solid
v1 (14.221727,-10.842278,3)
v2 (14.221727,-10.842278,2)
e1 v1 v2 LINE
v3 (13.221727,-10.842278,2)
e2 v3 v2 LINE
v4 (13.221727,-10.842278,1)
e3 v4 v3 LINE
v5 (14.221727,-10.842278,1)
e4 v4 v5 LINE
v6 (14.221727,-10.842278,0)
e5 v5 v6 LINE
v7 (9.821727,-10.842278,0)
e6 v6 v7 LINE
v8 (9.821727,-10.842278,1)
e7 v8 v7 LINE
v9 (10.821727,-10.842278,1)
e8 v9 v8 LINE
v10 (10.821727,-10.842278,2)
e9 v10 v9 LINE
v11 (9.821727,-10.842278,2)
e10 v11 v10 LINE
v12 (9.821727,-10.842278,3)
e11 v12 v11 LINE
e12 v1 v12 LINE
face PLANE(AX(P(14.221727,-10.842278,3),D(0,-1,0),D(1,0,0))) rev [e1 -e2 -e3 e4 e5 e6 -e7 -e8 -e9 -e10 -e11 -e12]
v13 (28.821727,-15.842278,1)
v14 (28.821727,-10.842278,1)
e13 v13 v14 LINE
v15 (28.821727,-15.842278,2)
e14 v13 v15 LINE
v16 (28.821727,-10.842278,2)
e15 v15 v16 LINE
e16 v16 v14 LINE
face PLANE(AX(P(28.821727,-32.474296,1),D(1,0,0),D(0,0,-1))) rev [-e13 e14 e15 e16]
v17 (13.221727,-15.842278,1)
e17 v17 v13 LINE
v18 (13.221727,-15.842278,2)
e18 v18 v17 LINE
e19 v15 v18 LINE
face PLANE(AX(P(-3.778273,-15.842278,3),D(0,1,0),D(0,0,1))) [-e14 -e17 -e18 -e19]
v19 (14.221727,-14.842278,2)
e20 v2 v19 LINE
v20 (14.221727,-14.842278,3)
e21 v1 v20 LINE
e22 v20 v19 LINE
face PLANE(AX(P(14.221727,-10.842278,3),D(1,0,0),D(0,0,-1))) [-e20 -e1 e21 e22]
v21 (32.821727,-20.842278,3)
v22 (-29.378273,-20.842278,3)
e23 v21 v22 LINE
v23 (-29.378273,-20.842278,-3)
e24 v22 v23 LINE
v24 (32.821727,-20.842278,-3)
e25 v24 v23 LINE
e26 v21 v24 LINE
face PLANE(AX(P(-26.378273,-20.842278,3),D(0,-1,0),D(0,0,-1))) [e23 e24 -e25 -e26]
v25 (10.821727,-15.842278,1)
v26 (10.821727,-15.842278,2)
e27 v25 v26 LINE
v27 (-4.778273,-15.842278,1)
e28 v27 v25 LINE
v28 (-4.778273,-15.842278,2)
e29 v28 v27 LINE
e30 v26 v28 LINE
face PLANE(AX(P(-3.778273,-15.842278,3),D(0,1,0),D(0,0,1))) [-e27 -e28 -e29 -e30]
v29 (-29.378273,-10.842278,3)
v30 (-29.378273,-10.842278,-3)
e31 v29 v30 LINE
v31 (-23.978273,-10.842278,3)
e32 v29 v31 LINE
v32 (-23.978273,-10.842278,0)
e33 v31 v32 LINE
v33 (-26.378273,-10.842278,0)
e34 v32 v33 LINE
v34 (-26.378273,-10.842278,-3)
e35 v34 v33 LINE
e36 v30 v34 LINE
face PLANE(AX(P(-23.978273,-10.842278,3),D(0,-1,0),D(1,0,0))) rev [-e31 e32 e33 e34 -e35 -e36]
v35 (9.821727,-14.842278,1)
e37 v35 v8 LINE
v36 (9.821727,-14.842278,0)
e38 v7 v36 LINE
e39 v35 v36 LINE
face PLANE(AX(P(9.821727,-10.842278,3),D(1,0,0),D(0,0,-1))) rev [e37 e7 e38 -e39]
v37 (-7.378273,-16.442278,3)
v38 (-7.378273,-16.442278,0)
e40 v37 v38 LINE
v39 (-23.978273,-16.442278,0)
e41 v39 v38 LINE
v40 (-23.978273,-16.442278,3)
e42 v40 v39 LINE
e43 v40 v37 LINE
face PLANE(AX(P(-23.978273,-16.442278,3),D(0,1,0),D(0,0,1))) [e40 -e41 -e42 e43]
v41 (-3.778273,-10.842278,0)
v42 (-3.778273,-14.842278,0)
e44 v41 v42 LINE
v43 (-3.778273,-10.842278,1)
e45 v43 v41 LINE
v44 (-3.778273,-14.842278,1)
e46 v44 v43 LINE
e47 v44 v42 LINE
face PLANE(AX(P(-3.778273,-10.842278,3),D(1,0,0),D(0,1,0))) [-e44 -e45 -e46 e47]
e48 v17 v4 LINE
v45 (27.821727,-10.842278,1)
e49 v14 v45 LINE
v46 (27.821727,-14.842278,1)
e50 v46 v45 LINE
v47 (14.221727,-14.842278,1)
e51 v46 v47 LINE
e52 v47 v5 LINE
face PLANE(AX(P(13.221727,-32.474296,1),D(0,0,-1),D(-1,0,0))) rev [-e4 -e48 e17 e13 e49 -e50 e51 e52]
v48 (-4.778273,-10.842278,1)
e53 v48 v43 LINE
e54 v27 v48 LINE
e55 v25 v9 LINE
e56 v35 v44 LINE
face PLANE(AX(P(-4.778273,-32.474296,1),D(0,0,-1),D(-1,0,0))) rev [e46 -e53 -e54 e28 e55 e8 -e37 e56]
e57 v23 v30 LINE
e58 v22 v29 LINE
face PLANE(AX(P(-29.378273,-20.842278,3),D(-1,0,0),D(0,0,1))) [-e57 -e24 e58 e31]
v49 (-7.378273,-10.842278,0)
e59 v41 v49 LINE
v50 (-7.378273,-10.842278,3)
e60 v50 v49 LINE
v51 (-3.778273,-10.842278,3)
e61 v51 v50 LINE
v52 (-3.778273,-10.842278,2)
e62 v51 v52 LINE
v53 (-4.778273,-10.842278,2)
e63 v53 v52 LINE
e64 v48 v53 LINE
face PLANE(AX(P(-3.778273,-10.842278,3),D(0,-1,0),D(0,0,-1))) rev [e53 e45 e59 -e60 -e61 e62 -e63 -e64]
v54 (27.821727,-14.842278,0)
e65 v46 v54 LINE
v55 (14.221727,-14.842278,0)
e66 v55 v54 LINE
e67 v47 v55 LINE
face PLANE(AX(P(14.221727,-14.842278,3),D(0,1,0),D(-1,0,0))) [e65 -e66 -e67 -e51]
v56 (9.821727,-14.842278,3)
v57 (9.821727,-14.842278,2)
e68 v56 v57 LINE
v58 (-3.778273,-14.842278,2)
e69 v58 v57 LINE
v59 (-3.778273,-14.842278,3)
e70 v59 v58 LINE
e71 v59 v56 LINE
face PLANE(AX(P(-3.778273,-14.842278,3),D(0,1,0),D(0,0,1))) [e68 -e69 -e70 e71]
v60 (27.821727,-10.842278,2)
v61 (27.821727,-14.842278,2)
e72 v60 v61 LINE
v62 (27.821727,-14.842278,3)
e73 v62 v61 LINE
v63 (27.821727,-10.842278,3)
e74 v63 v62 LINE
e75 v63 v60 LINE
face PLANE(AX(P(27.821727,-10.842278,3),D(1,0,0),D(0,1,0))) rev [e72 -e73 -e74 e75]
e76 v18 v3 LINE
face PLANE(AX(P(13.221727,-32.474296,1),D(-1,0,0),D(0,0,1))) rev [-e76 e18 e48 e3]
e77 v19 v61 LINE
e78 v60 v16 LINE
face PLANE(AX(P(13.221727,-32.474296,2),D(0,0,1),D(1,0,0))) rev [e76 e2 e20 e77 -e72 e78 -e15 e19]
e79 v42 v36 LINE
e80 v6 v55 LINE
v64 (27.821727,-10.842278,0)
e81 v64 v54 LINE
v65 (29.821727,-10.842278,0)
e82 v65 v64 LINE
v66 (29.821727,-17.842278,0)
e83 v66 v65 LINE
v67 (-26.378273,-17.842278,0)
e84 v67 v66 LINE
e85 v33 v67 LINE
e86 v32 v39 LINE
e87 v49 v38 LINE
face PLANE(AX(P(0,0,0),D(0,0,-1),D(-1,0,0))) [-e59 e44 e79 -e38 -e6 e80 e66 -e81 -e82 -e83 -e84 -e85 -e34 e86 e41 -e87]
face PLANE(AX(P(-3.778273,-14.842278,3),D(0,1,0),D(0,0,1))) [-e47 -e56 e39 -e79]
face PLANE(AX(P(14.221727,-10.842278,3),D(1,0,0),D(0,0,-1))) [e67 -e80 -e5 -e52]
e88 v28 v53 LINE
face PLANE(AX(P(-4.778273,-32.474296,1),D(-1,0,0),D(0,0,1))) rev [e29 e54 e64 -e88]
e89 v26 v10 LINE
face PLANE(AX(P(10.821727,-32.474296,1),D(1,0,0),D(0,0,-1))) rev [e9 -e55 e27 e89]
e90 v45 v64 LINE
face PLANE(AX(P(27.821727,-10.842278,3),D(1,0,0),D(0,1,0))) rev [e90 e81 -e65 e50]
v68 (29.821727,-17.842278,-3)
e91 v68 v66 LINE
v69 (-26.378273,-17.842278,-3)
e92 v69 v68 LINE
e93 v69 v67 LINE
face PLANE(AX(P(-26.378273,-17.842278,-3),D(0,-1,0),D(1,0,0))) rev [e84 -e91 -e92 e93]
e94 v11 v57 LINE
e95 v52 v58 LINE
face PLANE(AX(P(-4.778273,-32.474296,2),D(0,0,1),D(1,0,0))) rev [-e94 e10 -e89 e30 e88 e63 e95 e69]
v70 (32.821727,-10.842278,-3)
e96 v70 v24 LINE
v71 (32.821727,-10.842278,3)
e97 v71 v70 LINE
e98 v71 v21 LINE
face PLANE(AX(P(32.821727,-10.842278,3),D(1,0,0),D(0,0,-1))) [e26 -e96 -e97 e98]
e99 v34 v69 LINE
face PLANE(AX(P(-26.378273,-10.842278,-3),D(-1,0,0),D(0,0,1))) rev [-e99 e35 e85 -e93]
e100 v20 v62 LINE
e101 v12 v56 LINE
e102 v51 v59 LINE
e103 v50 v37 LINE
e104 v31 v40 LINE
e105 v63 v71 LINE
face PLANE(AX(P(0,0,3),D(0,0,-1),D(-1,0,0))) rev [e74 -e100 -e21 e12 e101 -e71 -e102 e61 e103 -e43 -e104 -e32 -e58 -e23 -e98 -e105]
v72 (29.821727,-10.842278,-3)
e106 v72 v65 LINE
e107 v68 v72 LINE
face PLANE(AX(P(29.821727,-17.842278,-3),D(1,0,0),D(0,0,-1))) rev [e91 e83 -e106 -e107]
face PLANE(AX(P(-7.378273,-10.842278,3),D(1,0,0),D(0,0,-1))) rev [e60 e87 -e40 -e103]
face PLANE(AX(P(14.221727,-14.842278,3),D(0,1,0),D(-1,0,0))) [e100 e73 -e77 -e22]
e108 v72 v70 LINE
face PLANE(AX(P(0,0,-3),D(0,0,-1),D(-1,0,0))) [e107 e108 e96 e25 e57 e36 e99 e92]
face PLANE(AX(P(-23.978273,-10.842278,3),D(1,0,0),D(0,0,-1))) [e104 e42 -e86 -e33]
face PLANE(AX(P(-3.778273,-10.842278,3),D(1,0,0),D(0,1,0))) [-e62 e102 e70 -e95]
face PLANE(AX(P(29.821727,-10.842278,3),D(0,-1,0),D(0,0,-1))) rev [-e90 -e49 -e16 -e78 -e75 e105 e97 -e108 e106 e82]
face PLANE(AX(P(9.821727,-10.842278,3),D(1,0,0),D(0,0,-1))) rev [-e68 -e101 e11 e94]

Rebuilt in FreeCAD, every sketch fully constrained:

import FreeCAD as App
import Part
import Sketcher
Q = App.Units.Quantity

doc = App.newDocument("Part")
body = doc.addObject("PartDesign::Body", "Body")

# Sketch on XY plane
sketch1 = body.newObject("Sketcher::SketchObject", "Sketch")
sketch1.AttachmentSupport = (doc.getObject("XY_Plane"), [""])
sketch1.MapMode = "FlatFace"
sketch1.addGeometry([
    Part.LineSegment(App.Vector(-29.4, -20.8, 0), App.Vector(32.8, -20.8, 0)),  # 0
    Part.LineSegment(App.Vector(32.8, -20.8, 0), App.Vector(32.8, -10.8, 0)),  # 1
    Part.LineSegment(App.Vector(32.8, -10.8, 0), App.Vector(27.8, -10.8, 0)),  # 2
    Part.LineSegment(App.Vector(27.8, -10.8, 0), App.Vector(27.8, -14.8, 0)),  # 3
    Part.LineSegment(App.Vector(27.8, -14.8, 0), App.Vector(14.2, -14.8, 0)),  # 4
    Part.LineSegment(App.Vector(14.2, -14.8, 0), App.Vector(14.2, -10.8, 0)),  # 5
    Part.LineSegment(App.Vector(14.2, -10.8, 0), App.Vector(9.8, -10.8, 0)),  # 6
    Part.LineSegment(App.Vector(9.8, -10.8, 0), App.Vector(9.8, -14.8, 0)),  # 7
    Part.LineSegment(App.Vector(9.8, -14.8, 0), App.Vector(-3.8, -14.8, 0)),  # 8
    Part.LineSegment(App.Vector(-3.8, -14.8, 0), App.Vector(-3.8, -10.8, 0)),  # 9
    Part.LineSegment(App.Vector(-3.8, -10.8, 0), App.Vector(-7.4, -10.8, 0)),  # 10
    Part.LineSegment(App.Vector(-7.4, -10.8, 0), App.Vector(-7.4, -16.4, 0)),  # 11
    Part.LineSegment(App.Vector(-7.4, -16.4, 0), App.Vector(-24, -16.4, 0)),  # 12
    Part.LineSegment(App.Vector(-24, -16.4, 0), App.Vector(-24, -10.8, 0)),  # 13
    Part.LineSegment(App.Vector(-24, -10.8, 0), App.Vector(-29.4, -10.8, 0)),  # 14
    Part.LineSegment(App.Vector(-29.4, -10.8, 0), App.Vector(-29.4, -20.8, 0)),  # 15
], False)
sketch1.addConstraint([
    Sketcher.Constraint("Coincident", 0, 2, 1, 1),
    Sketcher.Constraint("Coincident", 1, 2, 2, 1),
    Sketcher.Constraint("Coincident", 2, 2, 3, 1),
    Sketcher.Constraint("Coincident", 3, 2, 4, 1),
    Sketcher.Constraint("Coincident", 4, 2, 5, 1),
    Sketcher.Constraint("Coincident", 5, 2, 6, 1),
    Sketcher.Constraint("Coincident", 6, 2, 7, 1),
    Sketcher.Constraint("Coincident", 7, 2, 8, 1),
    Sketcher.Constraint("Coincident", 8, 2, 9, 1),
    Sketcher.Constraint("Coincident", 9, 2, 10, 1),
    Sketcher.Constraint("Coincident", 10, 2, 11, 1),
    Sketcher.Constraint("Coincident", 11, 2, 12, 1),
    Sketcher.Constraint("Coincident", 12, 2, 13, 1),
    Sketcher.Constraint("Coincident", 13, 2, 14, 1),
    Sketcher.Constraint("Coincident", 14, 2, 15, 1),
    Sketcher.Constraint("Coincident", 15, 2, 0, 1),
    Sketcher.Constraint("Horizontal", 0),
    Sketcher.Constraint("Vertical", 1),
    Sketcher.Constraint("Horizontal", 2),
    Sketcher.Constraint("Vertical", 3),
    Sketcher.Constraint("Horizontal", 4),
    Sketcher.Constraint("Vertical", 5),
    Sketcher.Constraint("Horizontal", 6),
    Sketcher.Constraint("Vertical", 7),
    Sketcher.Constraint("Horizontal", 8),
    Sketcher.Constraint("Vertical", 9),
    Sketcher.Constraint("Horizontal", 10),
    Sketcher.Constraint("Vertical", 11),
    Sketcher.Constraint("Horizontal", 12),
    Sketcher.Constraint("Vertical", 13),
    Sketcher.Constraint("Horizontal", 14),
    Sketcher.Constraint("Vertical", 15),
    Sketcher.Constraint("Horizontal", 2, 2, 5, 2),
    Sketcher.Constraint("Horizontal", 4, 2, 7, 2),
    Sketcher.Constraint("Horizontal", 6, 2, 9, 2),
    Sketcher.Constraint("Horizontal", 10, 2, 13, 2),
    Sketcher.Constraint("Equal", 4, 8),
    Sketcher.Constraint("DistanceX", 2, 2, 2, 1, Q("5 mm")),
    Sketcher.Constraint("DistanceY", 1, 1, 1, 2, Q("10 mm")),
    Sketcher.Constraint("DistanceY", 3, 2, 3, 1, Q("4 mm")),
    Sketcher.Constraint("DistanceX", 0, 1, 0, 2, Q("62.2 mm")),
    Sketcher.Constraint("DistanceX", 4, 2, 4, 1, Q("13.6 mm")),
    Sketcher.Constraint("DistanceX", 6, 2, 6, 1, Q("4.4 mm")),
    Sketcher.Constraint("DistanceX", 10, 2, 10, 1, Q("3.6 mm")),
    Sketcher.Constraint("DistanceX", 12, 2, 12, 1, Q("16.6 mm")),
    Sketcher.Constraint("DistanceY", 11, 2, 11, 1, Q("5.6 mm")),
    Sketcher.Constraint("DistanceY", 0, 2, -1, 1, Q("20.842278 mm")),
    Sketcher.Constraint("DistanceX", -1, 1, 0, 2, Q("32.821727 mm")),
])
pad1 = body.newObject("PartDesign::Pad", "Pad")
pad1.Profile = sketch1
pad1.Length = 3

# Sketch on XZ plane
sketch2 = body.newObject("Sketcher::SketchObject", "Sketch001")
sketch2.AttachmentSupport = (doc.getObject("XZ_Plane"), [""])
sketch2.MapMode = "FlatFace"
sketch2.AttachmentOffset = App.Placement(App.Vector(0, 0, 10.842278), App.Rotation())
sketch2.addGeometry([
    Part.LineSegment(App.Vector(-4.8, 1, 0), App.Vector(-4.8, 2, 0)),  # 0
    Part.LineSegment(App.Vector(-4.8, 2, 0), App.Vector(10.8, 2, 0)),  # 1
    Part.LineSegment(App.Vector(10.8, 2, 0), App.Vector(10.8, 1, 0)),  # 2
    Part.LineSegment(App.Vector(10.8, 1, 0), App.Vector(-4.8, 1, 0)),  # 3
    Part.LineSegment(App.Vector(13.2, 1, 0), App.Vector(13.2, 2, 0)),  # 4
    Part.LineSegment(App.Vector(13.2, 2, 0), App.Vector(28.8, 2, 0)),  # 5
    Part.LineSegment(App.Vector(28.8, 2, 0), App.Vector(28.8, 1, 0)),  # 6
    Part.LineSegment(App.Vector(28.8, 1, 0), App.Vector(13.2, 1, 0)),  # 7
], False)
sketch2.addConstraint([
    Sketcher.Constraint("Coincident", 0, 2, 1, 1),
    Sketcher.Constraint("Coincident", 1, 2, 2, 1),
    Sketcher.Constraint("Coincident", 2, 2, 3, 1),
    Sketcher.Constraint("Coincident", 3, 2, 0, 1),
    Sketcher.Constraint("Coincident", 4, 2, 5, 1),
    Sketcher.Constraint("Coincident", 5, 2, 6, 1),
    Sketcher.Constraint("Coincident", 6, 2, 7, 1),
    Sketcher.Constraint("Coincident", 7, 2, 4, 1),
    Sketcher.Constraint("Vertical", 0),
    Sketcher.Constraint("Horizontal", 1),
    Sketcher.Constraint("Vertical", 2),
    Sketcher.Constraint("Horizontal", 3),
    Sketcher.Constraint("Vertical", 4),
    Sketcher.Constraint("Horizontal", 5),
    Sketcher.Constraint("Vertical", 6),
    Sketcher.Constraint("Horizontal", 7),
    Sketcher.Constraint("Horizontal", 1, 2, 4, 2),
    Sketcher.Constraint("Horizontal", 3, 2, 6, 2),
    Sketcher.Constraint("Equal", 3, 5),
    Sketcher.Constraint("DistanceY", 0, 1, 0, 2, Q("1 mm")),
    Sketcher.Constraint("DistanceX", 1, 1, 1, 2, Q("15.6 mm")),
    Sketcher.Constraint("DistanceY", -1, 1, 0, 2, Q("2 mm")),
    Sketcher.Constraint("DistanceX", 0, 2, 4, 2, Q("18 mm")),
    Sketcher.Constraint("DistanceX", 0, 2, -1, 1, Q("4.778273 mm")),
])
pocket1 = body.newObject("PartDesign::Pocket", "Pocket")
pocket1.Profile = sketch2
pocket1.Length = 5
pocket1.Reversed = True

# Sketch on XY plane
sketch3 = body.newObject("Sketcher::SketchObject", "Sketch002")
sketch3.AttachmentSupport = (doc.getObject("XY_Plane"), [""])
sketch3.MapMode = "FlatFace"
sketch3.addGeometry([
    Part.LineSegment(App.Vector(32.8, -10.8, 0), App.Vector(32.8, -20.8, 0)),  # 0
    Part.LineSegment(App.Vector(32.8, -20.8, 0), App.Vector(-29.4, -20.8, 0)),  # 1
    Part.LineSegment(App.Vector(-29.4, -20.8, 0), App.Vector(-29.4, -10.8, 0)),  # 2
    Part.LineSegment(App.Vector(-29.4, -10.8, 0), App.Vector(-26.4, -10.8, 0)),  # 3
    Part.LineSegment(App.Vector(-26.4, -10.8, 0), App.Vector(-26.4, -17.8, 0)),  # 4
    Part.LineSegment(App.Vector(-26.4, -17.8, 0), App.Vector(29.8, -17.8, 0)),  # 5
    Part.LineSegment(App.Vector(29.8, -17.8, 0), App.Vector(29.8, -10.8, 0)),  # 6
    Part.LineSegment(App.Vector(29.8, -10.8, 0), App.Vector(32.8, -10.8, 0)),  # 7
], False)
sketch3.addConstraint([
    Sketcher.Constraint("Coincident", 0, 2, 1, 1),
    Sketcher.Constraint("Coincident", 1, 2, 2, 1),
    Sketcher.Constraint("Coincident", 2, 2, 3, 1),
    Sketcher.Constraint("Coincident", 3, 2, 4, 1),
    Sketcher.Constraint("Coincident", 4, 2, 5, 1),
    Sketcher.Constraint("Coincident", 5, 2, 6, 1),
    Sketcher.Constraint("Coincident", 6, 2, 7, 1),
    Sketcher.Constraint("Coincident", 7, 2, 0, 1),
    Sketcher.Constraint("Vertical", 0),
    Sketcher.Constraint("Horizontal", 1),
    Sketcher.Constraint("Vertical", 2),
    Sketcher.Constraint("Horizontal", 3),
    Sketcher.Constraint("Vertical", 4),
    Sketcher.Constraint("Horizontal", 5),
    Sketcher.Constraint("Vertical", 6),
    Sketcher.Constraint("Horizontal", 7),
    Sketcher.Constraint("Horizontal", 3, 2, 6, 2),
    Sketcher.Constraint("Equal", 3, 7),
    Sketcher.Constraint("DistanceX", 3, 1, 3, 2, Q("3 mm")),
    Sketcher.Constraint("DistanceY", 0, 2, 0, 1, Q("10 mm")),
    Sketcher.Constraint("DistanceY", 4, 2, 4, 1, Q("7 mm")),
    Sketcher.Constraint("DistanceX", 1, 2, 1, 1, Q("62.2 mm")),
    Sketcher.Constraint("DistanceY", 0, 2, -1, 1, Q("20.842278 mm")),
    Sketcher.Constraint("DistanceX", -1, 1, 0, 2, Q("32.821727 mm")),
])
pad2 = body.newObject("PartDesign::Pad", "Pad001")
pad2.Profile = sketch3
pad2.Length = 3
pad2.Reversed = True

doc.recompute()
